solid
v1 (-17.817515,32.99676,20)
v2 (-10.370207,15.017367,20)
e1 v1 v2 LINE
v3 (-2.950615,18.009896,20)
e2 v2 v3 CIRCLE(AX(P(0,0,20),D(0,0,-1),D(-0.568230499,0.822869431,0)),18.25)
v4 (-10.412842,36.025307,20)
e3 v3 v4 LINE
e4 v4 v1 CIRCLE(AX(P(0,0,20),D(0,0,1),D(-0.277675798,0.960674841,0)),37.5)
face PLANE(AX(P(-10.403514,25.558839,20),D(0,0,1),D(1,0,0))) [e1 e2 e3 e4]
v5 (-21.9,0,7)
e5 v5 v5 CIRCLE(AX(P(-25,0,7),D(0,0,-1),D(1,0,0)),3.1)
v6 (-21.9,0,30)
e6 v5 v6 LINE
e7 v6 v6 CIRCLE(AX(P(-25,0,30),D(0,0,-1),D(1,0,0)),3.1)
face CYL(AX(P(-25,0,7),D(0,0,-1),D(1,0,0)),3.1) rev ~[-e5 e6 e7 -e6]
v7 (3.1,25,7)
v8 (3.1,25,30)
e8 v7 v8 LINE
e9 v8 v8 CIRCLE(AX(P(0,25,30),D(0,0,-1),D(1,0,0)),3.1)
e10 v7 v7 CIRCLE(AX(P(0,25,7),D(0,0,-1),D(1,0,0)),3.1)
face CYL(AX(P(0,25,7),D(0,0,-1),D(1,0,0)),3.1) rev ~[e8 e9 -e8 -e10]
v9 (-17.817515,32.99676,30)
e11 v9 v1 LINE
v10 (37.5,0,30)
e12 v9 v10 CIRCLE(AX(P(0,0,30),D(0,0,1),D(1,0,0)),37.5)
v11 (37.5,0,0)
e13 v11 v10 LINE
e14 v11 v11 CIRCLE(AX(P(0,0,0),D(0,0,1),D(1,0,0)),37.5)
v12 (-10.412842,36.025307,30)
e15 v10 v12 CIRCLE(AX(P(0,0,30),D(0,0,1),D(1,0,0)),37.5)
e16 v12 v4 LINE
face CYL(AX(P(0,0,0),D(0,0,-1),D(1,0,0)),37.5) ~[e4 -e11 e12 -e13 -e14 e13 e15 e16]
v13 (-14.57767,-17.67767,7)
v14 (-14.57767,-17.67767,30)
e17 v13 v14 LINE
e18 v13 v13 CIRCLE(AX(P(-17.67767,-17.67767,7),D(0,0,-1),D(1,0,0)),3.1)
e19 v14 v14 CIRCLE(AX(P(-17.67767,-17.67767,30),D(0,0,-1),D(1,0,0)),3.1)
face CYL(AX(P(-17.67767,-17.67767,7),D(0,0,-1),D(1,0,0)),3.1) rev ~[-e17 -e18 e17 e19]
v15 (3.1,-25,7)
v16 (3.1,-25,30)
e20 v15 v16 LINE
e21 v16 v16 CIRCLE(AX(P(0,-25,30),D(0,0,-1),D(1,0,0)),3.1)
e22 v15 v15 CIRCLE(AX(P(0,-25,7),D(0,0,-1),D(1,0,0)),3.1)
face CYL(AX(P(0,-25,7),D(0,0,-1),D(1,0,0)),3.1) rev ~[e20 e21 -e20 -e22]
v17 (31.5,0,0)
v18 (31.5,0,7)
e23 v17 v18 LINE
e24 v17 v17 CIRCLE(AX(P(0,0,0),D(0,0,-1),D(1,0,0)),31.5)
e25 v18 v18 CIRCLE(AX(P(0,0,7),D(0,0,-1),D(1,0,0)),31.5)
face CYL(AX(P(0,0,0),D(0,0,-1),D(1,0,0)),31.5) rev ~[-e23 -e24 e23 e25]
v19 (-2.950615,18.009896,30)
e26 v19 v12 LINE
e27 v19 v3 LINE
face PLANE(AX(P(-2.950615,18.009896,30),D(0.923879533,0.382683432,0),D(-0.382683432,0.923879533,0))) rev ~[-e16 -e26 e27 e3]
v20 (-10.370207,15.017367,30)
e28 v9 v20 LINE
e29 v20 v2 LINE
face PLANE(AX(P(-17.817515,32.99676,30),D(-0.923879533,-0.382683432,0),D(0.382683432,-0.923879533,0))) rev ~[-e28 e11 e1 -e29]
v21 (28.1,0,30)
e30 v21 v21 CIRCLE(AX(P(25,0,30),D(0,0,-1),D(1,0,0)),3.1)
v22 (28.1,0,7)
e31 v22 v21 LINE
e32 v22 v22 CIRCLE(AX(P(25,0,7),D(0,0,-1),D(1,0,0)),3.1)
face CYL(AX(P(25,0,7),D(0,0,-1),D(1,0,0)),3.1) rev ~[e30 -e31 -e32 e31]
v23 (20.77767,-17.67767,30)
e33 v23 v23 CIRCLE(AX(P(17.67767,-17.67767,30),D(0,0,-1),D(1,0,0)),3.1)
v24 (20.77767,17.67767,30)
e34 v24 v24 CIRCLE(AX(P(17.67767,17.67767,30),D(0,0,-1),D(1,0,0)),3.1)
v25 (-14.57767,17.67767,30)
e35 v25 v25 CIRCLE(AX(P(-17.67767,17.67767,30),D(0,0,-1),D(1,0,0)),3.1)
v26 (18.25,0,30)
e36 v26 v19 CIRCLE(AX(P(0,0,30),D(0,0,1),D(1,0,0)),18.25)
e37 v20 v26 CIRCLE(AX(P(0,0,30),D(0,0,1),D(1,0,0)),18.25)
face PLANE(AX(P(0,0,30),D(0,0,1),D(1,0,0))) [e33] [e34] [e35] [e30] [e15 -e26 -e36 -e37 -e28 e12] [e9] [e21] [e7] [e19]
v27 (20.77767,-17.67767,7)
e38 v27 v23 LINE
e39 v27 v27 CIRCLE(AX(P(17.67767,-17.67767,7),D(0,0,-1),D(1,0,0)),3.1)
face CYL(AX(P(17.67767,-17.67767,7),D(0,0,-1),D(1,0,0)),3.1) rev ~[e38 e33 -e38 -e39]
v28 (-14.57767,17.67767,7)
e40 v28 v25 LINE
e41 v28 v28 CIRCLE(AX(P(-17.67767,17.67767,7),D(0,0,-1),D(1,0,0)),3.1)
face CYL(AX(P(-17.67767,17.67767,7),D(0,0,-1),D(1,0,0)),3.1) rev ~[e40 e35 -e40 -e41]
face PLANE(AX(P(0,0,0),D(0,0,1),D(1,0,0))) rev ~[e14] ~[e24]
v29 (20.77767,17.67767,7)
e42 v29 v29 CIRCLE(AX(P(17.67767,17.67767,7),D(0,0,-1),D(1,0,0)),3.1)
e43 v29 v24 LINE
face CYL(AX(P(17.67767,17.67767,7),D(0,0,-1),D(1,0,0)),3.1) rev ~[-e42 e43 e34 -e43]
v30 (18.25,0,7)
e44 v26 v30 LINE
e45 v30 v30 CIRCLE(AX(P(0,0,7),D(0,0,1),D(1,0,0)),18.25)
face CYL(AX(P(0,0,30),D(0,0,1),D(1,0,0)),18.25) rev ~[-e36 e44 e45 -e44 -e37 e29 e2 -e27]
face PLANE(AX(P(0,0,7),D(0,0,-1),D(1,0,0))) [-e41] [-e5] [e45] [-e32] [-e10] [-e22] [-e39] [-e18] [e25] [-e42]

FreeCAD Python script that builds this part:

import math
import FreeCAD as App
import Part
import Sketcher
Q = App.Units.Quantity

doc = App.newDocument("Part")
params = doc.addObject("Spreadsheet::Sheet", "Params")
for row, (alias, value) in enumerate([
    ("sketch1_diameter", "75 mm"),
    ("pad1_length", "30 mm"),
    ("sketch2_diameter", "63 mm"),
    ("pocket1_length", "7 mm"),
    ("sketch3_diameter", "6.2 mm"),
    ("sketch4_diameter", "36.5 mm"),
    ("sketch5_radius", "37.5 mm"),
    ("sketch5_radius2", "18.25 mm"),
    ("pocket4_length", "10 mm"),
], start=1):
    params.set(f"A{row}", alias)
    params.set(f"B{row}", "=" + value)
    params.setAlias(f"B{row}", alias)

body = doc.addObject("PartDesign::Body", "Body")

# Sketch on XY plane
sketch1 = body.newObject("Sketcher::SketchObject", "Sketch")
sketch1.AttachmentSupport = (doc.getObject("XY_Plane"), [""])
sketch1.MapMode = "FlatFace"
sketch1.addGeometry(Part.Circle(App.Vector(0, 0, 0), App.Vector(0, 0, 1), 38), False)
sketch1.addConstraint([
    Sketcher.Constraint("Coincident", 0, 3, -1, 1),
    Sketcher.Constraint("Diameter", 0, Q("75 mm")),
])
sketch1.setExpression("Constraints[1]", "Params.sketch1_diameter")
pad1 = body.newObject("PartDesign::Pad", "Pad")
pad1.Profile = sketch1
pad1.setExpression("Length", "Params.pad1_length")

# Sketch on XY plane
sketch2 = body.newObject("Sketcher::SketchObject", "Sketch001")
sketch2.AttachmentSupport = (doc.getObject("XY_Plane"), [""])
sketch2.MapMode = "FlatFace"
sketch2.addGeometry(Part.Circle(App.Vector(0, 0, 0), App.Vector(0, 0, 1), 32), False)
sketch2.addConstraint([
    Sketcher.Constraint("Coincident", 0, 3, -1, 1),
    Sketcher.Constraint("Diameter", 0, Q("63 mm")),
])
sketch2.setExpression("Constraints[1]", "Params.sketch2_diameter")
pocket1 = body.newObject("PartDesign::Pocket", "Pocket")
pocket1.Profile = sketch2
pocket1.setExpression("Length", "Params.pocket1_length")
pocket1.Reversed = True

# Sketch on XY plane
sketch3 = body.newObject("Sketcher::SketchObject", "Sketch002")
sketch3.AttachmentSupport = (doc.getObject("XY_Plane"), [""])
sketch3.MapMode = "FlatFace"
sketch3.AttachmentOffset = App.Placement(App.Vector(0, 0, 7), App.Rotation())
sketch3.addGeometry([
    Part.Circle(App.Vector(25, 0, 0), App.Vector(0, 0, 1), 3.1),  # 0
    Part.Circle(App.Vector(17.7, -17.7, 0), App.Vector(0, 0, 1), 3.1),  # 1
    Part.Circle(App.Vector(0, -25, 0), App.Vector(0, 0, 1), 3.1),  # 2
    Part.Circle(App.Vector(-17.7, -17.7, 0), App.Vector(0, 0, 1), 3.1),  # 3
    Part.Circle(App.Vector(-25, 0, 0), App.Vector(0, 0, 1), 3.1),  # 4
    Part.Circle(App.Vector(-17.7, 17.7, 0), App.Vector(0, 0, 1), 3.1),  # 5
    Part.Circle(App.Vector(0, 25, 0), App.Vector(0, 0, 1), 3.1),  # 6
    Part.Circle(App.Vector(17.7, 17.7, 0), App.Vector(0, 0, 1), 3.1),  # 7
], False)
sketch3.addConstraint([
    Sketcher.Constraint("Equal", 0, 1),
    Sketcher.Constraint("Equal", 1, 2),
    Sketcher.Constraint("Equal", 2, 3),
    Sketcher.Constraint("Equal", 3, 4),
    Sketcher.Constraint("Equal", 4, 5),
    Sketcher.Constraint("Equal", 5, 6),
    Sketcher.Constraint("Equal", 6, 7),
    Sketcher.Constraint("Symmetric", 0, 3, 4, 3, -1, 1),
    Sketcher.Constraint("Symmetric", 1, 3, 5, 3, -1, 1),
    Sketcher.Constraint("Symmetric", 2, 3, 6, 3, -1, 1),
    Sketcher.Constraint("Symmetric", 3, 3, 7, 3, -1, 1),
    Sketcher.Constraint("Symmetric", 1, 3, 3, 3, -2),
    Sketcher.Constraint("PointOnObject", 0, 3, -1),
    Sketcher.Constraint("PointOnObject", 2, 3, -2),
    Sketcher.Constraint("Diameter", 0, Q("6.2 mm")),
    Sketcher.Constraint("DistanceX", -1, 1, 0, 3, Q("25 mm")),
    Sketcher.Constraint("DistanceY", 2, 3, -1, 1, Q("25 mm")),
    Sketcher.Constraint("DistanceX", -1, 1, 1, 3, Q("17.67767 mm")),
    Sketcher.Constraint("DistanceY", 1, 3, -1, 1, Q("17.67767 mm")),
])
sketch3.setExpression("Constraints[14]", "Params.sketch3_diameter")
pocket2 = body.newObject("PartDesign::Pocket", "Pocket001")
pocket2.Profile = sketch3
pocket2.Type = "ThroughAll"
pocket2.Reversed = True

# Sketch on XY plane
sketch4 = body.newObject("Sketcher::SketchObject", "Sketch003")
sketch4.AttachmentSupport = (doc.getObject("XY_Plane"), [""])
sketch4.MapMode = "FlatFace"
sketch4.AttachmentOffset = App.Placement(App.Vector(0, 0, 30), App.Rotation())
sketch4.addGeometry(Part.Circle(App.Vector(0, 0, 0), App.Vector(0, 0, 1), 18), False)
sketch4.addConstraint([
    Sketcher.Constraint("Coincident", 0, 3, -1, 1),
    Sketcher.Constraint("Diameter", 0, Q("36.5 mm")),
])
sketch4.setExpression("Constraints[1]", "Params.sketch4_diameter")
pocket3 = body.newObject("PartDesign::Pocket", "Pocket002")
pocket3.Profile = sketch4
pocket3.Type = "ThroughAll"

# Sketch on XY plane
sketch5 = body.newObject("Sketcher::SketchObject", "Sketch004")
sketch5.AttachmentSupport = (doc.getObject("XY_Plane"), [""])
sketch5.MapMode = "FlatFace"
sketch5.AttachmentOffset = App.Placement(App.Vector(0, 0, 30), App.Rotation())
sketch5.addGeometry([
    Part.LineSegment(App.Vector(-3, 18, 0), App.Vector(-10, 36, 0)),
    Part.ArcOfCircle(Part.Circle(App.Vector(0, 0, 0), App.Vector(0, 0, 1), 38), math.radians(106.12), math.radians(118.37)),
    Part.LineSegment(App.Vector(-18, 33, 0), App.Vector(-10, 15, 0)),
    Part.ArcOfCircle(Part.Circle(App.Vector(0, 0, 0), App.Vector(0, 0, 1), 18), math.radians(99), math.radians(125)),
], False)
sketch5.addConstraint([
    Sketcher.Constraint("Coincident", 0, 2, 1, 1),
    Sketcher.Constraint("Coincident", 1, 2, 2, 1),
    Sketcher.Constraint("Coincident", 2, 2, 3, 2),
    Sketcher.Constraint("Coincident", 3, 1, 0, 1),
    Sketcher.Constraint("Coincident", 1, 3, -1, 1),
    Sketcher.Constraint("Coincident", 3, 3, -1, 1),
    Sketcher.Constraint("Parallel", 0, 2),
    Sketcher.Constraint("Radius", 1, Q("37.5 mm")),
    Sketcher.Constraint("Radius", 3, Q("18.25 mm")),
    Sketcher.Constraint("Angle", 0, Q("112.5 deg")),
    Sketcher.Constraint("DistanceX", 1, 2, 3, 1, Q("14.8669 mm")),
    Sketcher.Constraint("Distance", 0, Q("19.499739 mm")),
])
sketch5.setExpression("Constraints[7]", "Params.sketch5_radius")
sketch5.setExpression("Constraints[8]", "Params.sketch5_radius2")
pocket4 = body.newObject("PartDesign::Pocket", "Pocket003")
pocket4.Profile = sketch5
pocket4.setExpression("Length", "Params.pocket4_length")

doc.recompute()
